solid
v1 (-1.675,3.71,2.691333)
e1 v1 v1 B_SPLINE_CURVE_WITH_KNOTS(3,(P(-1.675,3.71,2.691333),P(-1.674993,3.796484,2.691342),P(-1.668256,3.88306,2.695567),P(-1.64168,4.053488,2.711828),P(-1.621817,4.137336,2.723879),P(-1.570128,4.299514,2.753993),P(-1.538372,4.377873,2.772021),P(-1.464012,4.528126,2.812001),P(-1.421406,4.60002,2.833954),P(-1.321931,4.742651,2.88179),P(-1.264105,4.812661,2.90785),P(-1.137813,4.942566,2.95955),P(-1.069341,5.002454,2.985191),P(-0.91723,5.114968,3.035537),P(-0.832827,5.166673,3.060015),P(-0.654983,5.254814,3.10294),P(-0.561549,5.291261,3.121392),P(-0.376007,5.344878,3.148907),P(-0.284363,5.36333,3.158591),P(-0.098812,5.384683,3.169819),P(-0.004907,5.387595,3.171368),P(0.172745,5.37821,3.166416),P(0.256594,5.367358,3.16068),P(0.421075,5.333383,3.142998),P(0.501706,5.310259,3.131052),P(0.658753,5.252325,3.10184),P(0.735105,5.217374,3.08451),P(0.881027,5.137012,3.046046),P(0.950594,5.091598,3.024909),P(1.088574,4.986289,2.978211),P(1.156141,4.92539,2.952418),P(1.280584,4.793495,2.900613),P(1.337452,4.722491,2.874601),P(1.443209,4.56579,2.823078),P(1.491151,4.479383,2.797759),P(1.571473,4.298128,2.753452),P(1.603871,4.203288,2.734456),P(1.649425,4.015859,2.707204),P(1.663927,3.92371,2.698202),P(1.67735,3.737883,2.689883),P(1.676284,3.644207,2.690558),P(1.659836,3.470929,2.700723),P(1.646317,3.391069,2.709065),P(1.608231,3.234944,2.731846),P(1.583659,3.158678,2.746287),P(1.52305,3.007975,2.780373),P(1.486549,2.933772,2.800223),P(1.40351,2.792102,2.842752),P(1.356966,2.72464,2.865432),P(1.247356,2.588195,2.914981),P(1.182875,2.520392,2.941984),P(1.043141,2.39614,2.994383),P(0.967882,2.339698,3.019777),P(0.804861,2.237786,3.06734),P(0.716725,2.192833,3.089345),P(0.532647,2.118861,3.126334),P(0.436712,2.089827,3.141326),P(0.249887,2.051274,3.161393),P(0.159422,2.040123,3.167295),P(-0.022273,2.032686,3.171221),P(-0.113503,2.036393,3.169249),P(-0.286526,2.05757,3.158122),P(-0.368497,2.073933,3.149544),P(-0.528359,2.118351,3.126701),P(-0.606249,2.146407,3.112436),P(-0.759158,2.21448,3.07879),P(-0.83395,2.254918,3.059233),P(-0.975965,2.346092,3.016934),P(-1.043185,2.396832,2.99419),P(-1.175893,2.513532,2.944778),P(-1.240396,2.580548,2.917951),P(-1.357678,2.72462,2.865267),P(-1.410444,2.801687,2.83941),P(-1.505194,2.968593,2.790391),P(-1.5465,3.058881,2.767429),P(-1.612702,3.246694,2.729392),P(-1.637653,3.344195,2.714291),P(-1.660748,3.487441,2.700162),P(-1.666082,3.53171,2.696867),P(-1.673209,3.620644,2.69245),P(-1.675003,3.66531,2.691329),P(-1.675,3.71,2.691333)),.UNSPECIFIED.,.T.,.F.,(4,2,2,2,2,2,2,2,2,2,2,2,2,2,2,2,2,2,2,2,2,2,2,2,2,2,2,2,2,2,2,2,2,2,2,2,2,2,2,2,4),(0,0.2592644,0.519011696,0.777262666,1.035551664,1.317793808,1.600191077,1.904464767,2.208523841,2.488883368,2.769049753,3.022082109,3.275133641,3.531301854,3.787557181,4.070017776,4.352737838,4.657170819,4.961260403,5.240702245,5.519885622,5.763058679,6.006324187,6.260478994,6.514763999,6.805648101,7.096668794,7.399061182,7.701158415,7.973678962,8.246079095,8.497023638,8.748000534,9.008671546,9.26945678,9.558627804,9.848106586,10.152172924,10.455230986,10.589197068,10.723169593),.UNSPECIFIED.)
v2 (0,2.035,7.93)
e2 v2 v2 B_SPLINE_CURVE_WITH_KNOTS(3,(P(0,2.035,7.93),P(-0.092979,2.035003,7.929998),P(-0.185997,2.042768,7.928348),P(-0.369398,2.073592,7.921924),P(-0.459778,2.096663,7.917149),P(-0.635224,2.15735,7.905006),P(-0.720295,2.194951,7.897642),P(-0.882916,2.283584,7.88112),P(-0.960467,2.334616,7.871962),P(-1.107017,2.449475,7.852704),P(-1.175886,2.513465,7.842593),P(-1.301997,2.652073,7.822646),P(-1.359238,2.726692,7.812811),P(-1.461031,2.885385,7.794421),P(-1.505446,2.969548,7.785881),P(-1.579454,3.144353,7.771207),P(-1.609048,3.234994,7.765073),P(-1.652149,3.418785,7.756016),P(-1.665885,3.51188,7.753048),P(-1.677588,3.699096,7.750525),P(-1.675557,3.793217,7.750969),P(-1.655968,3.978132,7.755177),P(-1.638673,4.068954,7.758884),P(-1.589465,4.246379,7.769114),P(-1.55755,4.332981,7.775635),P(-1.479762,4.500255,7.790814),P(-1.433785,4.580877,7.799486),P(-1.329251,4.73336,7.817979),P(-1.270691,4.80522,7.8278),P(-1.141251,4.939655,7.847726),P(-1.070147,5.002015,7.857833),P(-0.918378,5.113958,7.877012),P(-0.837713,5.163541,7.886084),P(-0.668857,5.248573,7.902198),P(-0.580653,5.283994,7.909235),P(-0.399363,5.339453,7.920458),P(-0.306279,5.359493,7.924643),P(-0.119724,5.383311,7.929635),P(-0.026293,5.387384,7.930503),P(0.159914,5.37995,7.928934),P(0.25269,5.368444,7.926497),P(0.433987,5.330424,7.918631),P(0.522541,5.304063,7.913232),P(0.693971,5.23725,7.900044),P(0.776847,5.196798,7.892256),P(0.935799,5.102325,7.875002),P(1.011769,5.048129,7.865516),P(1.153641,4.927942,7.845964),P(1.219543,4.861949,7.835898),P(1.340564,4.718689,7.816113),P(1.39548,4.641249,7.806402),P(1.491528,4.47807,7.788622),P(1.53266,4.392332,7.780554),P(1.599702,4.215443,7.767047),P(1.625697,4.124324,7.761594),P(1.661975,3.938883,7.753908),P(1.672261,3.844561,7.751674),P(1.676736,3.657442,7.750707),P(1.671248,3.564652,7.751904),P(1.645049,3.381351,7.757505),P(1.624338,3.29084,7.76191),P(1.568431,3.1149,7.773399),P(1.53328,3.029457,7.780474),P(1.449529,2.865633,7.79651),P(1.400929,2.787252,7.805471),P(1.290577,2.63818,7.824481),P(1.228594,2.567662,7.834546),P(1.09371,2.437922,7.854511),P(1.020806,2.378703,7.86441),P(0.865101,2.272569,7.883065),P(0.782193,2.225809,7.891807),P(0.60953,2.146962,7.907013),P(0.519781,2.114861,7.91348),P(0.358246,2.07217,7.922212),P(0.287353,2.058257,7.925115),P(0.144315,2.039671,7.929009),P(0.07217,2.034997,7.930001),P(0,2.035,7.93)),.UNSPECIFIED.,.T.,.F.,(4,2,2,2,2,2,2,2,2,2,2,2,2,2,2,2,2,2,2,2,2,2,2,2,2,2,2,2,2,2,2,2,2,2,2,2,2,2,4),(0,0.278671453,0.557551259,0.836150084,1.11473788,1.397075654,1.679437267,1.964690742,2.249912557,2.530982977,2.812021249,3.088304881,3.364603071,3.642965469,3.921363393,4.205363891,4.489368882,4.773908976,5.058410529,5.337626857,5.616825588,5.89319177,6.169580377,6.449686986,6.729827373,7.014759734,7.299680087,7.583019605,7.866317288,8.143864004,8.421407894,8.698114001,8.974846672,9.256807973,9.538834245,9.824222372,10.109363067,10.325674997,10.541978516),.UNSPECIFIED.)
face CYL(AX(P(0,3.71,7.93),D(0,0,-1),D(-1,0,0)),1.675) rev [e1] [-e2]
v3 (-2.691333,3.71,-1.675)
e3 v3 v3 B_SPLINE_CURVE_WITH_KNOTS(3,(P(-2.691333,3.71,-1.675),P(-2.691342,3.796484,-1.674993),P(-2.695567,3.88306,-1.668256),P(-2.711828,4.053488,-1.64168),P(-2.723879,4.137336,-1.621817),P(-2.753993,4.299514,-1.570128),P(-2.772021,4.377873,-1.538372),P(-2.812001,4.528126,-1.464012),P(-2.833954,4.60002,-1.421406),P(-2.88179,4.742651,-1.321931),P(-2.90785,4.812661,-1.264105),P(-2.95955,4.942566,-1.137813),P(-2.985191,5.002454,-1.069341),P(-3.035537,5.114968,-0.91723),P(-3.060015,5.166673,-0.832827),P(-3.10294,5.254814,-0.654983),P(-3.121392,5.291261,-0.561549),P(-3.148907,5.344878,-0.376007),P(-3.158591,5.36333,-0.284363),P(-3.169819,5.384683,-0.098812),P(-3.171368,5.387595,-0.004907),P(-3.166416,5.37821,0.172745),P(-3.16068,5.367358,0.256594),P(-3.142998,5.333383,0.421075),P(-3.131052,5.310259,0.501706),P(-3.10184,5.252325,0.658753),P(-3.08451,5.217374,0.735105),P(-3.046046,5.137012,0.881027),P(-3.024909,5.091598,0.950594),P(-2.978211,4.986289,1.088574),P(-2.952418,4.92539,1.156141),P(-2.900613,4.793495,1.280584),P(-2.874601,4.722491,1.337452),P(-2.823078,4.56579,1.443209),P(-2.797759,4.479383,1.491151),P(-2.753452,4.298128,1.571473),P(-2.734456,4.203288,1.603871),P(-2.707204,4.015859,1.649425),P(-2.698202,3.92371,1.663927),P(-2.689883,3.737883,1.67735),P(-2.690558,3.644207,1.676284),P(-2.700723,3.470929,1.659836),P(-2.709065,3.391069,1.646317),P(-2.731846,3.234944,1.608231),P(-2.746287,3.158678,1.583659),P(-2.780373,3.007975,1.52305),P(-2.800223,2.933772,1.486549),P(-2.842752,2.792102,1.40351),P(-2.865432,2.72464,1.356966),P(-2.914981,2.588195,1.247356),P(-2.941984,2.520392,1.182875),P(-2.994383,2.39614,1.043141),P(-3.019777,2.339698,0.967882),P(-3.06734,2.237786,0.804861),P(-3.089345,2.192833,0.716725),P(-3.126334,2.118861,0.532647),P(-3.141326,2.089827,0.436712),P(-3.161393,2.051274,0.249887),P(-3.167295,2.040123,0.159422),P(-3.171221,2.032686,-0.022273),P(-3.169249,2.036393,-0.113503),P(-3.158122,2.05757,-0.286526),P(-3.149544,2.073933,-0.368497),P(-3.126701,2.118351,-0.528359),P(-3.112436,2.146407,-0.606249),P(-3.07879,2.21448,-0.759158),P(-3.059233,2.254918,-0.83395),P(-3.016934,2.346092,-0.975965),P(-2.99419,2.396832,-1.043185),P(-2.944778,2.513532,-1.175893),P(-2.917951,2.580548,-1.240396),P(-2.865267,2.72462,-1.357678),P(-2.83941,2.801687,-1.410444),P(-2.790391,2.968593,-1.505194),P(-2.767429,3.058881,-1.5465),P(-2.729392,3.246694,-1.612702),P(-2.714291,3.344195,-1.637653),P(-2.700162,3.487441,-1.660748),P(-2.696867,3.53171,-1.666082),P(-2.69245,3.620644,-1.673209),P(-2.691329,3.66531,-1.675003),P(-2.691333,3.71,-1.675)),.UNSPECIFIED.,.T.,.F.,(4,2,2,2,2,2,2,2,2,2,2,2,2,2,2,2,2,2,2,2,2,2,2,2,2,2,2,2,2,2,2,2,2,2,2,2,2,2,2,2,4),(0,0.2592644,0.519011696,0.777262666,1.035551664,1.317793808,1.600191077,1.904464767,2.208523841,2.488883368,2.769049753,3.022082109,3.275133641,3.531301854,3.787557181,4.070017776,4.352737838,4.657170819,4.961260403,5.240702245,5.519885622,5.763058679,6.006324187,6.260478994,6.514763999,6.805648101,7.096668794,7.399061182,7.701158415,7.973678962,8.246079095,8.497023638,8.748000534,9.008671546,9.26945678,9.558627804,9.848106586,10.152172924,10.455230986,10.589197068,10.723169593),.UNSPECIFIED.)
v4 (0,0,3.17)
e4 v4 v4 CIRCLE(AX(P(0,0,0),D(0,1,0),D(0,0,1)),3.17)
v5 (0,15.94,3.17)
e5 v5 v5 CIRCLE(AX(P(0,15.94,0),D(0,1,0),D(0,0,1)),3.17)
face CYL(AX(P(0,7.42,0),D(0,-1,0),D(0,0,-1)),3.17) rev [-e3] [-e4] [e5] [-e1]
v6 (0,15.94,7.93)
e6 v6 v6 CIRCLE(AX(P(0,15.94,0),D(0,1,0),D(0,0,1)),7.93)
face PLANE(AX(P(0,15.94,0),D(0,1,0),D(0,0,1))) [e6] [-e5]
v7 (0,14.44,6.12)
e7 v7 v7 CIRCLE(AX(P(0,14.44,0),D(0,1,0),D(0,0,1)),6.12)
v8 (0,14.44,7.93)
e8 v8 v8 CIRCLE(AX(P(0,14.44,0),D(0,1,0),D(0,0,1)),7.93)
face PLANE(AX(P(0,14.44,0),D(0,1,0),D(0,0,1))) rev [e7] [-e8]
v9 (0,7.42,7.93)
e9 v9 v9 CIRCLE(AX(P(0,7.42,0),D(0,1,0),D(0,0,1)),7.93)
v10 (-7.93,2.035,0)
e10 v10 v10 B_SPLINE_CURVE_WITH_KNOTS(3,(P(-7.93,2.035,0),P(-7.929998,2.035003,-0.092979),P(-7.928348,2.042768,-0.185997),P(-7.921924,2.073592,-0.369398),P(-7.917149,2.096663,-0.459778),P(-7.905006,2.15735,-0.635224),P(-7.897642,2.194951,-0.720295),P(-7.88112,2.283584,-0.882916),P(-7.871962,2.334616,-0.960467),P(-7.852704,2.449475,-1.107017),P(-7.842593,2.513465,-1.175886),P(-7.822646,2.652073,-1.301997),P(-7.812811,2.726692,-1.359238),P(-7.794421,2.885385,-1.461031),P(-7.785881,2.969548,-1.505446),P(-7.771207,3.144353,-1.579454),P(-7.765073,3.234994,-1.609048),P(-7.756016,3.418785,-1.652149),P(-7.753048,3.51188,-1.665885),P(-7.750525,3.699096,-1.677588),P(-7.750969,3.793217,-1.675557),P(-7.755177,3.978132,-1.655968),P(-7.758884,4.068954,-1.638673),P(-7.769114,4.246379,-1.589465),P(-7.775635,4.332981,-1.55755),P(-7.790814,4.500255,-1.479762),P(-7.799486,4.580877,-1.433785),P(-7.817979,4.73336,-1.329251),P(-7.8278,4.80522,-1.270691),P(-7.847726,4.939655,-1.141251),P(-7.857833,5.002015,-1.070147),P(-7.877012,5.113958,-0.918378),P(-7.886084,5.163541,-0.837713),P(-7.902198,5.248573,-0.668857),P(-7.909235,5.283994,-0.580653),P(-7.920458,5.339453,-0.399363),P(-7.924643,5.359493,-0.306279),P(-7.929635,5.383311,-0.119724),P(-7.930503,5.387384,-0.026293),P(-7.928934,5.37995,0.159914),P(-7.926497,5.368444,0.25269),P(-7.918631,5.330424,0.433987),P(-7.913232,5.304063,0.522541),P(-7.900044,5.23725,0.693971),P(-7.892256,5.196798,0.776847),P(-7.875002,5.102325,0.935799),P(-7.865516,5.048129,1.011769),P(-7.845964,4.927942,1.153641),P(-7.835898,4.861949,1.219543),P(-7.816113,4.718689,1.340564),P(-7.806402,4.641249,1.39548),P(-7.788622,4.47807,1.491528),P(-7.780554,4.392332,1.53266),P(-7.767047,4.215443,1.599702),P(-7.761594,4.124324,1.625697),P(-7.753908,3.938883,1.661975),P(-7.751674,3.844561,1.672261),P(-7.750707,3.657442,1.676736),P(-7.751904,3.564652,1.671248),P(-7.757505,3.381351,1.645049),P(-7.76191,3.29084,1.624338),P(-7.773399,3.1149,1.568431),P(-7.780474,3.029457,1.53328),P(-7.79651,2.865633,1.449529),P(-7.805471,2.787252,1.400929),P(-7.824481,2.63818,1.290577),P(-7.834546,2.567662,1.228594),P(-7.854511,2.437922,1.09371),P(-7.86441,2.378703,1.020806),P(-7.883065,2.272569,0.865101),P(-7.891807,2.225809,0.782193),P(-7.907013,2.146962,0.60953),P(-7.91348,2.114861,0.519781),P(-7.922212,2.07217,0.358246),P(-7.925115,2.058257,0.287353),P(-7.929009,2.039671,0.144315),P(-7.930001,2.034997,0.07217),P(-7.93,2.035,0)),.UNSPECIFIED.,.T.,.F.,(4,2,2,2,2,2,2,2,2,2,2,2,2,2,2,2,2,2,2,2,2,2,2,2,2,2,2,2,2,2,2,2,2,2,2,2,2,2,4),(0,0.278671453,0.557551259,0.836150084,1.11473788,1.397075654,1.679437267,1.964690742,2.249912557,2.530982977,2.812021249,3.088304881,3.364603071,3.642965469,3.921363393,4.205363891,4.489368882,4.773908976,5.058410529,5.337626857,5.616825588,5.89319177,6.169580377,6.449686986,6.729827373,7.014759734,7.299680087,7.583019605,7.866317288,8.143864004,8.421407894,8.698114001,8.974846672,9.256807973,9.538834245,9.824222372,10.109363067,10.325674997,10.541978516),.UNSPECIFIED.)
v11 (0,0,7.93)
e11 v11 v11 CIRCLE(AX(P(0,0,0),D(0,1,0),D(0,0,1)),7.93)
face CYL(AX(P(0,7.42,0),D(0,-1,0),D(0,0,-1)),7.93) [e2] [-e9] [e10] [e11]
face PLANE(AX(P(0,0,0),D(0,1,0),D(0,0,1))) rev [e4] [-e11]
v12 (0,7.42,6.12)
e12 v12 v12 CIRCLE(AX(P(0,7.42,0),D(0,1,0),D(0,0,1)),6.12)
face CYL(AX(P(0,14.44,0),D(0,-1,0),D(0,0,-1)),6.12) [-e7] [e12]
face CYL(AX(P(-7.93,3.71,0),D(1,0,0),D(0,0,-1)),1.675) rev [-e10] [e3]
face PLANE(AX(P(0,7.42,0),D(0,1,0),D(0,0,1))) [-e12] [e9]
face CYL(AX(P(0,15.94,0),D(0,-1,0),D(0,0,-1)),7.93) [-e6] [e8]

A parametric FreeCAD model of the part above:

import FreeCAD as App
import Part
import Sketcher

V = App.Vector

doc = App.newDocument("Part")
params = doc.addObject("Spreadsheet::Sheet", "Params")
for row, (alias, value) in enumerate([
    ("sketch1_diameter", "15.86 mm"),
    ("sketch1_diameter2", "6.34 mm"),
    ("pad1_length", "7.42 mm"),
    ("sketch2_diameter", "12.24 mm"),
    ("sketch2_diameter2", "6.34 mm"),
    ("pad2_length", "7.02 mm"),
    ("sketch3_diameter", "15.86 mm"),
    ("sketch3_diameter2", "6.34 mm"),
    ("pad3_length", "1.5 mm"),
    ("sketch4_diameter", "3.35 mm"),
], start=1):
    params.set(f"A{row}", alias)
    params.set(f"B{row}", "=" + value)
    params.setAlias(f"B{row}", alias)

body = doc.addObject("PartDesign::Body", "Body")

sketch1 = body.newObject("Sketcher::SketchObject", "Sketch")
sketch1.AttachmentSupport = (doc.getObject("XZ_Plane"), [""])
sketch1.MapMode = "FlatFace"
sketch1.addGeometry([
    Part.Circle(V(0, 0, 0), V(0, 0, 1), 7.9),
    Part.Circle(V(0, 0, 0), V(0, 0, 1), 3.2),
], False)
sketch1.addConstraint([
    Sketcher.Constraint("Coincident", 0, 3, -1, 1),
    Sketcher.Constraint("Coincident", 1, 3, -1, 1),
    Sketcher.Constraint("Diameter", 0, 15.86),
    Sketcher.Constraint("Diameter", 1, 6.34),
])
sketch1.setExpression("Constraints[2]", "Params.sketch1_diameter")
sketch1.setExpression("Constraints[3]", "Params.sketch1_diameter2")
pad1 = body.newObject("PartDesign::Pad", "Pad")
pad1.Profile = sketch1
pad1.setExpression("Length", "Params.pad1_length")
pad1.Reversed = True

sketch2 = body.newObject("Sketcher::SketchObject", "Sketch001")
sketch2.AttachmentSupport = (doc.getObject("XZ_Plane"), [""])
sketch2.MapMode = "FlatFace"
sketch2.AttachmentOffset = App.Placement(V(0, 0, -7.42), App.Rotation())
sketch2.addGeometry([
    Part.Circle(V(0, 0, 0), V(0, 0, 1), 6.1),
    Part.Circle(V(0, 0, 0), V(0, 0, 1), 3.2),
], False)
sketch2.addConstraint([
    Sketcher.Constraint("Coincident", 0, 3, -1, 1),
    Sketcher.Constraint("Coincident", 1, 3, -1, 1),
    Sketcher.Constraint("Diameter", 0, 12.24),
    Sketcher.Constraint("Diameter", 1, 6.34),
])
sketch2.setExpression("Constraints[2]", "Params.sketch2_diameter")
sketch2.setExpression("Constraints[3]", "Params.sketch2_diameter2")
pad2 = body.newObject("PartDesign::Pad", "Pad001")
pad2.Profile = sketch2
pad2.setExpression("Length", "Params.pad2_length")
pad2.Reversed = True

sketch3 = body.newObject("Sketcher::SketchObject", "Sketch002")
sketch3.AttachmentSupport = (doc.getObject("XZ_Plane"), [""])
sketch3.MapMode = "FlatFace"
sketch3.AttachmentOffset = App.Placement(V(0, 0, -14.44), App.Rotation())
sketch3.addGeometry([
    Part.Circle(V(0, 0, 0), V(0, 0, 1), 7.9),
    Part.Circle(V(0, 0, 0), V(0, 0, 1), 3.2),
], False)
sketch3.addConstraint([
    Sketcher.Constraint("Coincident", 0, 3, -1, 1),
    Sketcher.Constraint("Coincident", 1, 3, -1, 1),
    Sketcher.Constraint("Diameter", 0, 15.86),
    Sketcher.Constraint("Diameter", 1, 6.34),
])
sketch3.setExpression("Constraints[2]", "Params.sketch3_diameter")
sketch3.setExpression("Constraints[3]", "Params.sketch3_diameter2")
pad3 = body.newObject("PartDesign::Pad", "Pad002")
pad3.Profile = sketch3
pad3.setExpression("Length", "Params.pad3_length")
pad3.Reversed = True

sketch4 = body.newObject("Sketcher::SketchObject", "Sketch003")
sketch4.AttachmentSupport = (doc.getObject("YZ_Plane"), [""])
sketch4.MapMode = "FlatFace"
sketch4.addGeometry(Part.Circle(V(3.7, 0, 0), V(0, 0, 1), 1.7), False)
sketch4.addConstraint([
    Sketcher.Constraint("PointOnObject", 0, 3, -1),
    Sketcher.Constraint("Diameter", 0, 3.35),
    Sketcher.Constraint("DistanceX", -1, 1, 0, 3, 3.71),
])
sketch4.setExpression("Constraints[1]", "Params.sketch4_diameter")
pocket1 = body.newObject("PartDesign::Pocket", "Pocket")
pocket1.Profile = sketch4
pocket1.Type = "ThroughAll"
doc.recompute()

polarpattern = body.newObject("PartDesign::PolarPattern", "PolarPattern")
polarpattern.Originals = [pocket1]
polarpattern.Axis = (doc.getObject("Y_Axis"), [""])
polarpattern.Angle = 90
polarpattern.Occurrences = 2
body.Tip = polarpattern

doc.recompute()
